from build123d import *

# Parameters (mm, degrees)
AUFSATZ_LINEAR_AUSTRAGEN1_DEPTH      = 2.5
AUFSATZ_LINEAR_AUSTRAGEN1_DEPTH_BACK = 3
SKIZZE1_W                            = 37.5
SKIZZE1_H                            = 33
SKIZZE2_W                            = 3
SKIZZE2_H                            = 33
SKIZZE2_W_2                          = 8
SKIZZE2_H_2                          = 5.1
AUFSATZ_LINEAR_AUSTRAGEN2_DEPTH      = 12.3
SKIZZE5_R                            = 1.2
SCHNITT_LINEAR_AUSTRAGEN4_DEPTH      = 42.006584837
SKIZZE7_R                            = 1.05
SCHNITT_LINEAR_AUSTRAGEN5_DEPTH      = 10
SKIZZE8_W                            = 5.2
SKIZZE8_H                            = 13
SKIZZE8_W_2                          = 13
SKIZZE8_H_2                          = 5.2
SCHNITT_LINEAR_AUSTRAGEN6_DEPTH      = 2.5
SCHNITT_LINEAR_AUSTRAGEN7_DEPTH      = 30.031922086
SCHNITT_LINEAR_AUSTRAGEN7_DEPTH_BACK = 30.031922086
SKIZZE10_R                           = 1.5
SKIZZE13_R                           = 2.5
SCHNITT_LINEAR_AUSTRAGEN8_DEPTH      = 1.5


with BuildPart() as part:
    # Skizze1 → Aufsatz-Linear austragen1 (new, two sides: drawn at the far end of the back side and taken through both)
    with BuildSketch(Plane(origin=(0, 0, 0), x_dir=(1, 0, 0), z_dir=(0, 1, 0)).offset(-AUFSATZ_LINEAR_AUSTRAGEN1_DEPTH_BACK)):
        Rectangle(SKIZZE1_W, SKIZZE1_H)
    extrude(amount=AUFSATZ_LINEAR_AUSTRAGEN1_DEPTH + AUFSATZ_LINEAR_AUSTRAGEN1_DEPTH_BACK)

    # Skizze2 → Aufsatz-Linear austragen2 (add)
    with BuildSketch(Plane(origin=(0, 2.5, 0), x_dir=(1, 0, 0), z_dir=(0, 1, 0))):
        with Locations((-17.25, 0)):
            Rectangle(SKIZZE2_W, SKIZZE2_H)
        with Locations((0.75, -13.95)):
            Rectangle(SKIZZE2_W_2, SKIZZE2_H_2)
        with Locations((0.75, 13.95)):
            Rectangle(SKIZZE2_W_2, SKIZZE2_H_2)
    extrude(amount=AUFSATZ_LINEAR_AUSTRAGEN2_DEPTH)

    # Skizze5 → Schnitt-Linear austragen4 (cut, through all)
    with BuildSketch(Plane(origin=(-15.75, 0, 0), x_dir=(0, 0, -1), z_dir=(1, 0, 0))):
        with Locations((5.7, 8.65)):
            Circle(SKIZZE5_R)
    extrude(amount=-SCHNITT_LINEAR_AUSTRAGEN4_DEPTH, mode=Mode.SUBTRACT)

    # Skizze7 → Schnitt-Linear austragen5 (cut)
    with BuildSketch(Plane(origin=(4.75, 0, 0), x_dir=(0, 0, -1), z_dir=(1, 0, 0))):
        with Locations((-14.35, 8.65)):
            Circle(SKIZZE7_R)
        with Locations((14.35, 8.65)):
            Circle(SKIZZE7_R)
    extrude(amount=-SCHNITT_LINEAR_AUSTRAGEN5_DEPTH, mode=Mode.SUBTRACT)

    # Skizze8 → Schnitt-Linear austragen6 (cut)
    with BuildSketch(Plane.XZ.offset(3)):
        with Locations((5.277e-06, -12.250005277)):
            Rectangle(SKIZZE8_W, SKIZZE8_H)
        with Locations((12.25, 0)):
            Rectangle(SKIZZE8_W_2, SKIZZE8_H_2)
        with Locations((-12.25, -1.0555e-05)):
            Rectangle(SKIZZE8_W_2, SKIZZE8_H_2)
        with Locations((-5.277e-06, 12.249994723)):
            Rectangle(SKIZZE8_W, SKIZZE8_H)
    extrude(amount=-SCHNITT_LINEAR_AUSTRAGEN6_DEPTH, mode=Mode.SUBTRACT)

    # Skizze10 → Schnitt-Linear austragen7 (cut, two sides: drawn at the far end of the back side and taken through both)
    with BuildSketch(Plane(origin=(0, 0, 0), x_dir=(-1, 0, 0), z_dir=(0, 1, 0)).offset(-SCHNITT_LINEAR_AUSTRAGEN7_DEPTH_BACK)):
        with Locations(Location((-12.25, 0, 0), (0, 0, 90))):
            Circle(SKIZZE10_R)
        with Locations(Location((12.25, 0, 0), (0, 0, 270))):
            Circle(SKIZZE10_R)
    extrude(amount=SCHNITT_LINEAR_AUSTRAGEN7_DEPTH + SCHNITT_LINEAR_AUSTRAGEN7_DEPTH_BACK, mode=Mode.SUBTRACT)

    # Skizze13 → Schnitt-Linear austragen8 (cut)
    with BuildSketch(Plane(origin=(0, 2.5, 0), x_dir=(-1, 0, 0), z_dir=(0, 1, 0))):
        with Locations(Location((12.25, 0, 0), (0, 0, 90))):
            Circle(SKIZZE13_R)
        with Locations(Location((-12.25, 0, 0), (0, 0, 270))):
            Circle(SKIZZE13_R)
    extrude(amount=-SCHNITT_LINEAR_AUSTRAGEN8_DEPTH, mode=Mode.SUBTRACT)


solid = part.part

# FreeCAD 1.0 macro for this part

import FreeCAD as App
import Part
import Sketcher
from FreeCAD import Vector
Q = App.Units.Quantity


def add_polygon(sketch, points):
    """Adds a closed chain of lines whose ends are joined by coincident constraints."""
    first, n = sketch.GeometryCount, len(points)
    for a, b in zip(points, points[1:] + points[:1]):
        sketch.addGeometry(Part.LineSegment(App.Vector(*a, 0), App.Vector(*b, 0)), False)
    for i in range(n):
        sketch.addConstraint(Sketcher.Constraint("Coincident", first + i, 2, first + (i + 1) % n, 1))

doc = App.newDocument("Part")
params = doc.addObject("Spreadsheet::Sheet", "Params")
for row, (alias, value) in enumerate([
    ("sketch1_height", "33 mm"),
    ("sketch1_width", "37.5 mm"),
    ("pad1_length", "2.5 mm"),
    ("pad1_length2", "3 mm"),
    ("sketch2_width", "3 mm"),
    ("sketch2_width2", "8 mm"),
    ("sketch2_height", "33 mm"),
    ("sketch2_height2", "5.1 mm"),
    ("pad2_length", "12.3 mm"),
    ("sketch3_diameter", "2.4 mm"),
    ("sketch4_diameter", "2.1 mm"),
    ("pocket2_length", "10 mm"),
    ("sketch5_width", "13 mm"),
    ("sketch5_width2", "5.2 mm"),
    ("pocket3_length", "2.5 mm"),
    ("sketch6_diameter", "3 mm"),
    ("sketch7_diameter", "5 mm"),
    ("pocket5_length", "1.5 mm"),
], start=1):
    params.set(f"A{row}", alias)
    params.set(f"B{row}", "=" + value)
    params.setAlias(f"B{row}", alias)

body = doc.addObject("PartDesign::Body", "Body")

# Sketch on XZ plane
sketch1 = doc.addObject("Sketcher::SketchObject", "Sketch")
body.addObject(sketch1)
sketch1.AttachmentSupport = (doc.XZ_Plane, [""])
sketch1.MapMode = "FlatFace"
add_polygon(sketch1, [(-18.75, -16.5), (-18.75, 16.5), (18.75, 16.5), (18.75, -16.5)])  # lines 0-3
sketch1.addConstraint(Sketcher.Constraint("Vertical", 0))
sketch1.addConstraint(Sketcher.Constraint("Horizontal", 1))
sketch1.addConstraint(Sketcher.Constraint("Vertical", 2))
sketch1.addConstraint(Sketcher.Constraint("Horizontal", 3))
sketch1.addConstraint(Sketcher.Constraint("Symmetric", 0, 2, 2, 2, -1, 1))
sketch1.addConstraint(Sketcher.Constraint("DistanceY", 0, 1, 0, 2, Q("33 mm")))
sketch1.addConstraint(Sketcher.Constraint("DistanceX", 1, 1, 1, 2, Q("37.5 mm")))
sketch1.setExpression("Constraints[9]", "Params.sketch1_height")
sketch1.setExpression("Constraints[10]", "Params.sketch1_width")
pad1 = doc.addObject("PartDesign::Pad", "Pad")
body.addObject(pad1)
pad1.Profile = sketch1
pad1.Type = "TwoLengths"
pad1.setExpression("Length", "Params.pad1_length")
pad1.setExpression("Length2", "Params.pad1_length2")
pad1.Reversed = True

# Sketch on XZ plane
sketch2 = doc.addObject("Sketcher::SketchObject", "Sketch001")
body.addObject(sketch2)
sketch2.AttachmentSupport = (doc.XZ_Plane, [""])
sketch2.MapMode = "FlatFace"
sketch2.AttachmentOffset = App.Placement(Vector(0, 0, -2.5), App.Rotation())
add_polygon(sketch2, [(-18.75, -16.5), (-18.75, 16.5), (-15.75, 16.5), (-15.75, -16.5)])  # lines 0-3
add_polygon(sketch2, [(-3.25, 11.4), (-3.25, 16.5), (4.75, 16.5), (4.75, 11.4)])  # lines 4-7
add_polygon(sketch2, [(-3.25, -16.5), (-3.25, -11.4), (4.75, -11.4), (4.75, -16.5)])  # lines 8-11
sketch2.addConstraint(Sketcher.Constraint("Vertical", 0))
sketch2.addConstraint(Sketcher.Constraint("Horizontal", 1))
sketch2.addConstraint(Sketcher.Constraint("Vertical", 2))
sketch2.addConstraint(Sketcher.Constraint("Horizontal", 3))
sketch2.addConstraint(Sketcher.Constraint("Vertical", 4))
sketch2.addConstraint(Sketcher.Constraint("Horizontal", 5))
sketch2.addConstraint(Sketcher.Constraint("Vertical", 6))
sketch2.addConstraint(Sketcher.Constraint("Horizontal", 7))
sketch2.addConstraint(Sketcher.Constraint("Vertical", 8))
sketch2.addConstraint(Sketcher.Constraint("Horizontal", 9))
sketch2.addConstraint(Sketcher.Constraint("Vertical", 10))
sketch2.addConstraint(Sketcher.Constraint("Horizontal", 11))
sketch2.addConstraint(Sketcher.Constraint("Symmetric", 7, 2, 8, 2, -1))
sketch2.addConstraint(Sketcher.Constraint("Symmetric", 5, 2, 10, 2, -1))
sketch2.addConstraint(Sketcher.Constraint("Horizontal", 1, 2, 4, 2))
sketch2.addConstraint(Sketcher.Constraint("Horizontal", 3, 2, 10, 2))
sketch2.addConstraint(Sketcher.Constraint("DistanceX", 1, 1, 1, 2, Q("3 mm")))
sketch2.addConstraint(Sketcher.Constraint("DistanceX", 5, 1, 5, 2, Q("8 mm")))
sketch2.addConstraint(Sketcher.Constraint("DistanceY", 0, 1, 0, 2, Q("33 mm")))
sketch2.addConstraint(Sketcher.Constraint("DistanceY", 4, 1, 4, 2, Q("5.1 mm")))
sketch2.addConstraint(Sketcher.Constraint("DistanceX", 1, 2, 4, 2, Q("12.5 mm")))
sketch2.addConstraint(Sketcher.Constraint("DistanceX", 0, 2, -1, 1, Q("18.75 mm")))
sketch2.setExpression("Constraints[28]", "Params.sketch2_width")
sketch2.setExpression("Constraints[29]", "Params.sketch2_width2")
sketch2.setExpression("Constraints[30]", "Params.sketch2_height")
sketch2.setExpression("Constraints[31]", "Params.sketch2_height2")
pad2 = doc.addObject("PartDesign::Pad", "Pad001")
body.addObject(pad2)
pad2.Profile = sketch2
pad2.setExpression("Length", "Params.pad2_length")
pad2.Reversed = True

# Sketch on YZ plane
sketch3 = doc.addObject("Sketcher::SketchObject", "Sketch002")
body.addObject(sketch3)
sketch3.AttachmentSupport = (doc.YZ_Plane, [""])
sketch3.MapMode = "FlatFace"
sketch3.AttachmentOffset = App.Placement(Vector(0, 0, -15.75), App.Rotation())
sketch3.addGeometry(Part.Circle(Vector(8.65, -5.7, 0), Vector(0, 0, 1), 1.2), False)
sketch3.addConstraint(Sketcher.Constraint("Diameter", 0, Q("2.4 mm")))
sketch3.addConstraint(Sketcher.Constraint("DistanceY", 0, 3, -1, 1, Q("5.7 mm")))
sketch3.addConstraint(Sketcher.Constraint("DistanceX", -1, 1, 0, 3, Q("8.65 mm")))
sketch3.setExpression("Constraints[0]", "Params.sketch3_diameter")
pocket1 = doc.addObject("PartDesign::Pocket", "Pocket")
body.addObject(pocket1)
pocket1.Profile = sketch3
pocket1.Type = "ThroughAll"

# Sketch on YZ plane
sketch4 = doc.addObject("Sketcher::SketchObject", "Sketch003")
body.addObject(sketch4)
sketch4.AttachmentSupport = (doc.YZ_Plane, [""])
sketch4.MapMode = "FlatFace"
sketch4.AttachmentOffset = App.Placement(Vector(0, 0, 4.75), App.Rotation())
sketch4.addGeometry(Part.Circle(Vector(8.65, 14.35, 0), Vector(0, 0, 1), 1.05), False)
sketch4.addGeometry(Part.Circle(Vector(8.65, -14.35, 0), Vector(0, 0, 1), 1.05), False)
sketch4.addConstraint(Sketcher.Constraint("Equal", 0, 1))
sketch4.addConstraint(Sketcher.Constraint("Symmetric", 0, 3, 1, 3, -1))
sketch4.addConstraint(Sketcher.Constraint("Diameter", 0, Q("2.1 mm")))
sketch4.addConstraint(Sketcher.Constraint("DistanceY", 1, 3, 0, 3, Q("28.7 mm")))
sketch4.addConstraint(Sketcher.Constraint("DistanceX", -1, 1, 0, 3, Q("8.65 mm")))
sketch4.setExpression("Constraints[2]", "Params.sketch4_diameter")
pocket2 = doc.addObject("PartDesign::Pocket", "Pocket001")
body.addObject(pocket2)
pocket2.Profile = sketch4
pocket2.setExpression("Length", "Params.pocket2_length")

# Sketch on XZ plane
sketch5 = doc.addObject("Sketcher::SketchObject", "Sketch004")
body.addObject(sketch5)
sketch5.AttachmentSupport = (doc.XZ_Plane, [""])
sketch5.MapMode = "FlatFace"
sketch5.AttachmentOffset = App.Placement(Vector(0, 0, 3), App.Rotation())
add_polygon(sketch5, [(-2.599995, -5.750005), (-2.599995, -18.750005), (2.600005, -18.750005), (2.600005, -5.750005)])  # lines 0-3
add_polygon(sketch5, [(5.75, 2.6), (5.75, -2.6), (18.75, -2.6), (18.75, 2.6)])  # lines 4-7
add_polygon(sketch5, [(-18.75, 2.599989), (-18.75, -2.600011), (-5.75, -2.600011), (-5.75, 2.599989)])  # lines 8-11
add_polygon(sketch5, [(-2.600005, 18.749995), (-2.600005, 5.749995), (2.599995, 5.749995), (2.599995, 18.749995)])  # lines 12-15
sketch5.addConstraint(Sketcher.Constraint("Vertical", 0))
sketch5.addConstraint(Sketcher.Constraint("Horizontal", 1))
sketch5.addConstraint(Sketcher.Constraint("Vertical", 2))
sketch5.addConstraint(Sketcher.Constraint("Horizontal", 3))
sketch5.addConstraint(Sketcher.Constraint("Vertical", 4))
sketch5.addConstraint(Sketcher.Constraint("Horizontal", 5))
sketch5.addConstraint(Sketcher.Constraint("Vertical", 6))
sketch5.addConstraint(Sketcher.Constraint("Horizontal", 7))
sketch5.addConstraint(Sketcher.Constraint("Vertical", 8))
sketch5.addConstraint(Sketcher.Constraint("Horizontal", 9))
sketch5.addConstraint(Sketcher.Constraint("Vertical", 10))
sketch5.addConstraint(Sketcher.Constraint("Horizontal", 11))
sketch5.addConstraint(Sketcher.Constraint("Vertical", 12))
sketch5.addConstraint(Sketcher.Constraint("Horizontal", 13))
sketch5.addConstraint(Sketcher.Constraint("Vertical", 14))
sketch5.addConstraint(Sketcher.Constraint("Horizontal", 15))
sketch5.addConstraint(Sketcher.Constraint("Equal", 7, 9))
sketch5.addConstraint(Sketcher.Constraint("Equal", 3, 13))
sketch5.addConstraint(Sketcher.Constraint("Equal", 11, 0))
sketch5.addConstraint(Sketcher.Constraint("Equal", 15, 4))
sketch5.addConstraint(Sketcher.Constraint("Equal", 6, 8))
sketch5.addConstraint(Sketcher.Constraint("Equal", 2, 12))
sketch5.addConstraint(Sketcher.Constraint("DistanceX", 5, 1, 5, 2, Q("13 mm")))
sketch5.addConstraint(Sketcher.Constraint("DistanceX", 1, 1, 1, 2, Q("5.2 mm")))
sketch5.addConstraint(Sketcher.Constraint("DistanceY", 4, 2, -1, 1, Q("2.6 mm")))
sketch5.addConstraint(Sketcher.Constraint("DistanceX", 8, 2, 4, 2, Q("24.5 mm")))
sketch5.addConstraint(Sketcher.Constraint("DistanceY", 3, 2, 12, 2, Q("11.5 mm")))
sketch5.addConstraint(Sketcher.Constraint("DistanceX", -1, 1, 4, 2, Q("5.75 mm")))
sketch5.addConstraint(Sketcher.Constraint("DistanceY", 8, 2, -1, 1, Q("2.600011 mm")))
sketch5.addConstraint(Sketcher.Constraint("DistanceX", 0, 2, -1, 1, Q("2.599995 mm")))
sketch5.addConstraint(Sketcher.Constraint("DistanceY", 0, 2, -1, 1, Q("18.750005 mm")))
sketch5.addConstraint(Sketcher.Constraint("DistanceX", 12, 2, -1, 1, Q("2.600005 mm")))
sketch5.setExpression("Constraints[38]", "Params.sketch5_width")
sketch5.setExpression("Constraints[39]", "Params.sketch5_width2")
pocket3 = doc.addObject("PartDesign::Pocket", "Pocket002")
body.addObject(pocket3)
pocket3.Profile = sketch5
pocket3.setExpression("Length", "Params.pocket3_length")

# Sketch on XZ plane
sketch6 = doc.addObject("Sketcher::SketchObject", "Sketch005")
body.addObject(sketch6)
sketch6.AttachmentSupport = (doc.XZ_Plane, [""])
sketch6.MapMode = "FlatFace"
sketch6.addGeometry(Part.Circle(Vector(12.25, 0, 0), Vector(0, 0, 1), 1.5), False)
sketch6.addGeometry(Part.Circle(Vector(-12.25, 0, 0), Vector(0, 0, 1), 1.5), False)
sketch6.addConstraint(Sketcher.Constraint("Equal", 0, 1))
sketch6.addConstraint(Sketcher.Constraint("Symmetric", 0, 3, 1, 3, -1, 1))
sketch6.addConstraint(Sketcher.Constraint("PointOnObject", 0, 3, -1))
sketch6.addConstraint(Sketcher.Constraint("Diameter", 0, Q("3 mm")))
sketch6.addConstraint(Sketcher.Constraint("DistanceX", 1, 3, 0, 3, Q("24.5 mm")))
sketch6.setExpression("Constraints[3]", "Params.sketch6_diameter")
pocket4 = doc.addObject("PartDesign::Pocket", "Pocket003")
body.addObject(pocket4)
pocket4.Profile = sketch6
pocket4.Type = "ThroughAll"
pocket4.Midplane = True

# Sketch on XZ plane
sketch7 = doc.addObject("Sketcher::SketchObject", "Sketch006")
body.addObject(sketch7)
sketch7.AttachmentSupport = (doc.XZ_Plane, [""])
sketch7.MapMode = "FlatFace"
sketch7.AttachmentOffset = App.Placement(Vector(0, 0, -2.5), App.Rotation())
sketch7.addGeometry(Part.Circle(Vector(-12.25, 0, 0), Vector(0, 0, 1), 2.5), False)
sketch7.addGeometry(Part.Circle(Vector(12.25, 0, 0), Vector(0, 0, 1), 2.5), False)
sketch7.addConstraint(Sketcher.Constraint("Equal", 0, 1))
sketch7.addConstraint(Sketcher.Constraint("Symmetric", 0, 3, 1, 3, -1, 1))
sketch7.addConstraint(Sketcher.Constraint("PointOnObject", 0, 3, -1))
sketch7.addConstraint(Sketcher.Constraint("Diameter", 0, Q("5 mm")))
sketch7.addConstraint(Sketcher.Constraint("DistanceX", 0, 3, 1, 3, Q("24.5 mm")))
sketch7.setExpression("Constraints[3]", "Params.sketch7_diameter")
pocket5 = doc.addObject("PartDesign::Pocket", "Pocket004")
body.addObject(pocket5)
pocket5.Profile = sketch7
pocket5.setExpression("Length", "Params.pocket5_length")
pocket5.Reversed = True

doc.recompute()
